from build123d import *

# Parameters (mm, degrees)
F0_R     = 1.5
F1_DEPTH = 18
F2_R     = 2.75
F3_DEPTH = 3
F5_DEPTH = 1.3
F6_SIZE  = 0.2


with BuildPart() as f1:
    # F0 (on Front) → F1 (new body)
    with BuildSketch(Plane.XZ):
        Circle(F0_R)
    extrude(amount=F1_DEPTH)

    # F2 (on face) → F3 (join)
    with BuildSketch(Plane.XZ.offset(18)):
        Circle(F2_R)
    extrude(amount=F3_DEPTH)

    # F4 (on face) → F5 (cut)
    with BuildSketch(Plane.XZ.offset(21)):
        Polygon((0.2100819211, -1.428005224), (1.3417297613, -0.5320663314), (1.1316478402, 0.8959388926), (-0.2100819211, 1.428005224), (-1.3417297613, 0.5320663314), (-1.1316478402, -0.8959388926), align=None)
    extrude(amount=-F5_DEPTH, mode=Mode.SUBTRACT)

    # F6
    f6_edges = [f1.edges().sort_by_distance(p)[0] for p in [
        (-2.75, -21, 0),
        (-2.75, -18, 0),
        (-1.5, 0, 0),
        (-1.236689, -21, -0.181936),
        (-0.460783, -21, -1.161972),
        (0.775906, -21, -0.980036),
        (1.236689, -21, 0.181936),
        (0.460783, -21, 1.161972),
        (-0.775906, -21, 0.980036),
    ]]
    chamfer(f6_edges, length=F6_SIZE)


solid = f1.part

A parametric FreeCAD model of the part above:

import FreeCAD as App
import Part
import Sketcher
Q = App.Units.Quantity


def edges_at(feature, points):
    """Names of the edges that pass closest to the given points."""
    edges = feature.Shape.Edges
    near = lambda p: min(range(len(edges)), key=lambda i: edges[i].distToShape(Part.Vertex(*p))[0])
    return sorted({f"Edge{near(p) + 1}" for p in points})

doc = App.newDocument("Part")
body = doc.addObject("PartDesign::Body", "Body")

# Sketch on XZ plane
sketch1 = body.newObject("Sketcher::SketchObject", "Sketch")
sketch1.AttachmentSupport = (doc.getObject("XZ_Plane"), [""])
sketch1.MapMode = "FlatFace"
sketch1.addGeometry(Part.Circle(App.Vector(0, 0, 0), App.Vector(0, 0, 1), 1.5), False)
sketch1.addConstraint(Sketcher.Constraint("Coincident", 0, 3, -1, 1))
sketch1.addConstraint(Sketcher.Constraint("Diameter", 0, Q("3 mm")))
pad1 = body.newObject("PartDesign::Pad", "Pad")
pad1.Profile = sketch1
pad1.Length = 18

# Sketch on XZ plane
sketch2 = body.newObject("Sketcher::SketchObject", "Sketch001")
sketch2.AttachmentSupport = (doc.getObject("XZ_Plane"), [""])
sketch2.MapMode = "FlatFace"
sketch2.AttachmentOffset = App.Placement(App.Vector(0, 0, 18), App.Rotation())
sketch2.addGeometry(Part.Circle(App.Vector(0, 0, 0), App.Vector(0, 0, 1), 2.75), False)
sketch2.addConstraint(Sketcher.Constraint("Coincident", 0, 3, -1, 1))
sketch2.addConstraint(Sketcher.Constraint("Diameter", 0, Q("5.5 mm")))
pad2 = body.newObject("PartDesign::Pad", "Pad001")
pad2.Profile = sketch2
pad2.Length = 3

# Sketch on XZ plane
sketch3 = body.newObject("Sketcher::SketchObject", "Sketch002")
sketch3.AttachmentSupport = (doc.getObject("XZ_Plane"), [""])
sketch3.MapMode = "FlatFace"
sketch3.AttachmentOffset = App.Placement(App.Vector(0, 0, 21), App.Rotation())
sketch3.addGeometry(Part.LineSegment(App.Vector(0.210082, -1.428005, 0), App.Vector(1.34173, -0.532066, 0)), False)
sketch3.addGeometry(Part.LineSegment(App.Vector(1.34173, -0.532066, 0), App.Vector(1.131648, 0.895939, 0)), False)
sketch3.addGeometry(Part.LineSegment(App.Vector(1.131648, 0.895939, 0), App.Vector(-0.210082, 1.428005, 0)), False)
sketch3.addGeometry(Part.LineSegment(App.Vector(-0.210082, 1.428005, 0), App.Vector(-1.34173, 0.532066, 0)), False)
sketch3.addGeometry(Part.LineSegment(App.Vector(-1.34173, 0.532066, 0), App.Vector(-1.131648, -0.895939, 0)), False)
sketch3.addGeometry(Part.LineSegment(App.Vector(-1.131648, -0.895939, 0), App.Vector(0.210082, -1.428005, 0)), False)
sketch3.addConstraint(Sketcher.Constraint("Coincident", 0, 2, 1, 1))
sketch3.addConstraint(Sketcher.Constraint("Coincident", 1, 2, 2, 1))
sketch3.addConstraint(Sketcher.Constraint("Coincident", 2, 2, 3, 1))
sketch3.addConstraint(Sketcher.Constraint("Coincident", 3, 2, 4, 1))
sketch3.addConstraint(Sketcher.Constraint("Coincident", 4, 2, 5, 1))
sketch3.addConstraint(Sketcher.Constraint("Coincident", 5, 2, 0, 1))
sketch3.addConstraint(Sketcher.Constraint("Symmetric", 0, 2, 3, 2, -1, 1))
sketch3.addConstraint(Sketcher.Constraint("Symmetric", 1, 2, 4, 2, -1, 1))
sketch3.addConstraint(Sketcher.Constraint("Symmetric", 2, 2, 5, 2, -1, 1))
sketch3.addConstraint(Sketcher.Constraint("Equal", 0, 1))
sketch3.addConstraint(Sketcher.Constraint("Equal", 1, 2))
sketch3.addConstraint(Sketcher.Constraint("DistanceX", -1, 1, 0, 2, Q("1.34173 mm")))
sketch3.addConstraint(Sketcher.Constraint("DistanceY", -1, 1, 1, 2, Q("0.895939 mm")))
sketch3.addConstraint(Sketcher.Constraint("DistanceX", 2, 2, -1, 1, Q("0.210082 mm")))
sketch3.addConstraint(Sketcher.Constraint("DistanceX", 1, 2, 0, 2, Q("0.210082 mm")))
pocket1 = body.newObject("PartDesign::Pocket", "Pocket")
pocket1.Profile = sketch3
pocket1.Length = 1.3
doc.recompute()

chamfer = body.newObject("PartDesign::Chamfer", "Chamfer")
chamfer.Base = (pocket1, edges_at(pocket1, [
    (-2.75, -21, 0),
    (-2.75, -18, 0),
    (-1.5, 0, 0),
    (-1.237, -21, -0.182),
    (-0.461, -21, -1.162),
    (0.776, -21, -0.98),
    (1.237, -21, 0.182),
    (0.461, -21, 1.162),
    (-0.776, -21, 0.98),
]))
chamfer.Size = 0.2

doc.recompute()
